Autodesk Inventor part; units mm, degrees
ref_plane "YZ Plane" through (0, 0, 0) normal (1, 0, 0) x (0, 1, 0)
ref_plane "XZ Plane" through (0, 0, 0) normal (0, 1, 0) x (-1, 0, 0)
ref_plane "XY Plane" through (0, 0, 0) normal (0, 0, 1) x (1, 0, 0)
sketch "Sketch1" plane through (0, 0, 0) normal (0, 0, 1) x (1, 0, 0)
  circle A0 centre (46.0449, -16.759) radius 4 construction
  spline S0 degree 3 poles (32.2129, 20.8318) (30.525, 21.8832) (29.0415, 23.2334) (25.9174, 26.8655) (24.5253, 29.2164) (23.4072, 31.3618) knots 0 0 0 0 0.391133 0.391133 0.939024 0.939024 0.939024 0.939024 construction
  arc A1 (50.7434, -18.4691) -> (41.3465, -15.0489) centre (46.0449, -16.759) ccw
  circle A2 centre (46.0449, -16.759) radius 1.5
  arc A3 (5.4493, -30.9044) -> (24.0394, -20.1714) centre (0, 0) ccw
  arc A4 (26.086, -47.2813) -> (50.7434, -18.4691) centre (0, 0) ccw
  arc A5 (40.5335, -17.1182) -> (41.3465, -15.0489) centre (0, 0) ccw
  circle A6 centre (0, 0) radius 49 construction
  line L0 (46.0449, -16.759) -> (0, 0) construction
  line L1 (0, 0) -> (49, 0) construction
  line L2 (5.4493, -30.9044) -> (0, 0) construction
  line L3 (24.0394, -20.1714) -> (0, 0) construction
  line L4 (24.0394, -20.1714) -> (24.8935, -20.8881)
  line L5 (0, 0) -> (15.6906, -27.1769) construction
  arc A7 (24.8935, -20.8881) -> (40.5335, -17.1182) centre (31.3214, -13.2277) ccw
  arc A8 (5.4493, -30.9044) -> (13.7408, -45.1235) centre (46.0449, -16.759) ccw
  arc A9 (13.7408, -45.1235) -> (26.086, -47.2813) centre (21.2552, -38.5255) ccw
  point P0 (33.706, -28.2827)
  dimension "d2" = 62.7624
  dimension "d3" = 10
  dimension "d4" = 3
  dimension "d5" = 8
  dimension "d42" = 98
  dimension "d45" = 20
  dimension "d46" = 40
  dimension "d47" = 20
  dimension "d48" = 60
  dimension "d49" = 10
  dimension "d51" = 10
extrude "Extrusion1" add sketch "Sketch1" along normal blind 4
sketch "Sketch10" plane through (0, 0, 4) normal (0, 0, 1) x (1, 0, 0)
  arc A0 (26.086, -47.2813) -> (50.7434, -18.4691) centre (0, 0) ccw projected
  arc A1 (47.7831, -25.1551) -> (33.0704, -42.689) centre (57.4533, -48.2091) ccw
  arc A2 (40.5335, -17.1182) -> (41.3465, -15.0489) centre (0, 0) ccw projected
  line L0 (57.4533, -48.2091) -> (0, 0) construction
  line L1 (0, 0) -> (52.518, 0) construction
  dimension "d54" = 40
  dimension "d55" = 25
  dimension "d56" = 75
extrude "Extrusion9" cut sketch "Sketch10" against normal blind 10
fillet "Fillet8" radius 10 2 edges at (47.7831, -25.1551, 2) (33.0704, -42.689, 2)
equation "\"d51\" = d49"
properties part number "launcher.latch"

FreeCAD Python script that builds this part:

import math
import FreeCAD as App
import Part
import Sketcher
Q = App.Units.Quantity


def edges_at(feature, points):
    """Names of the edges that pass closest to the given points."""
    edges = feature.Shape.Edges
    near = lambda p: min(range(len(edges)), key=lambda i: edges[i].distToShape(Part.Vertex(*p))[0])
    return sorted({f"Edge{near(p) + 1}" for p in points})

doc = App.newDocument("Part")
params = doc.addObject("Spreadsheet::Sheet", "Params")
for row, (alias, value) in enumerate([
    ("sketch1_diameter", "3 mm"),
    ("sketch1_radius", "5 mm"),
    ("sketch1_radius2", "10 mm"),
    ("sketch1_radius3", "54 mm"),
    ("pad1_length", "4 mm"),
    ("sketch2_radius", "25 mm"),
    ("sketch2_radius2", "54 mm"),
    ("pocket1_length", "10 mm"),
    ("fillet_radius", "10 mm"),
], start=1):
    params.set(f"A{row}", alias)
    params.set(f"B{row}", "=" + value)
    params.setAlias(f"B{row}", alias)

body = doc.addObject("PartDesign::Body", "Body")

sketch1 = body.newObject("Sketcher::SketchObject", "Sketch")
sketch1.AttachmentSupport = (doc.getObject("XY_Plane"), [""])
sketch1.MapMode = "FlatFace"
sketch1.addGeometry([
    Part.ArcOfCircle(Part.Circle(App.Vector(0, 0, 0), App.Vector(0, 0, 1), 54), math.radians(-61), math.radians(-20)),
    Part.ArcOfCircle(Part.Circle(App.Vector(46, -16.8, 0), App.Vector(0, 0, 1), 5), math.radians(-20), math.radians(160)),
    Part.ArcOfCircle(Part.Circle(App.Vector(-0.1, 0, 0), App.Vector(0, 0, 1), 44.1), math.radians(-22.89), math.radians(-20)),
    Part.ArcOfCircle(Part.Circle(App.Vector(31.3, -13.2, 0), App.Vector(0, 0, 1), 10), math.radians(-130), math.radians(-23)),
    Part.LineSegment(App.Vector(24.9, -20.9, 0), App.Vector(24, -20.2, 0)),
    Part.ArcOfCircle(Part.Circle(App.Vector(0, 0, 0), App.Vector(0, 0, 1), 31.4), math.radians(-80), math.radians(-40)),
    Part.ArcOfCircle(Part.Circle(App.Vector(46, -16.8, 0), App.Vector(0, 0, 1), 43), math.radians(-161), math.radians(-139)),
    Part.ArcOfCircle(Part.Circle(App.Vector(21.3, -38.5, 0), App.Vector(0, 0, 1), 10), math.radians(-139), math.radians(-61)),
    Part.Circle(App.Vector(46, -16.8, 0), App.Vector(0, 0, 1), 1.5),
], False)
sketch1.addConstraint([
    Sketcher.Constraint("Tangent", 0, 2, 1, 1),
    Sketcher.Constraint("Tangent", 1, 2, 2, 2),
    Sketcher.Constraint("Tangent", 2, 1, 3, 2),
    Sketcher.Constraint("Tangent", 3, 1, 4, 1),
    Sketcher.Constraint("Coincident", 4, 2, 5, 2),
    Sketcher.Constraint("Coincident", 5, 1, 6, 1),
    Sketcher.Constraint("Tangent", 6, 2, 7, 1),
    Sketcher.Constraint("Tangent", 7, 2, 0, 1),
    Sketcher.Constraint("Coincident", 0, 3, -1, 1),
    Sketcher.Constraint("Coincident", 5, 3, -1, 1),
    Sketcher.Constraint("Coincident", 8, 3, 1, 3),
    Sketcher.Constraint("Equal", 3, 7),
    Sketcher.Constraint("Diameter", 8, 3.0),
    Sketcher.Constraint("Radius", 1, 5.0),
    Sketcher.Constraint("Radius", 3, 10.0),
    Sketcher.Constraint("Radius", 0, 54.0),
    Sketcher.Constraint("Radius", 5, 31.3812),
    Sketcher.Constraint("Angle", 4, Q("139.999 deg")),
    Sketcher.Constraint("Radius", 6, 42.991),
    Sketcher.Constraint("Radius", 2, 44.0902),
    Sketcher.Constraint("DistanceX", 3, 1, 2, 1, 15.64),
    Sketcher.Constraint("DistanceX", 5, 1, 4, 2, 18.59),
    Sketcher.Constraint("Distance", 4, 1.115),
    Sketcher.Constraint("DistanceX", -1, 1, 1, 3, 46.045),
    Sketcher.Constraint("DistanceX", -1, 1, 7, 2, 26.086),
])
sketch1.setExpression("Constraints[12]", "Params.sketch1_diameter")
sketch1.setExpression("Constraints[13]", "Params.sketch1_radius")
sketch1.setExpression("Constraints[14]", "Params.sketch1_radius2")
sketch1.setExpression("Constraints[15]", "Params.sketch1_radius3")
pad1 = body.newObject("PartDesign::Pad", "Pad")
pad1.Profile = sketch1
pad1.setExpression("Length", "Params.pad1_length")

sketch2 = body.newObject("Sketcher::SketchObject", "Sketch001")
sketch2.AttachmentSupport = (doc.getObject("XY_Plane"), [""])
sketch2.MapMode = "FlatFace"
sketch2.AttachmentOffset = App.Placement(App.Vector(0, 0, 4), App.Rotation())
sketch2.addGeometry([
    Part.ArcOfCircle(Part.Circle(App.Vector(57, -48, 0), App.Vector(0, 0, 1), 25), math.radians(113), math.radians(167)),
    Part.ArcOfCircle(Part.Circle(App.Vector(0, 0, 0), App.Vector(0, 0, 1), 54), math.radians(-52), math.radians(-28)),
], False)
sketch2.addConstraint([
    Sketcher.Constraint("Coincident", 0, 1, 1, 2),
    Sketcher.Constraint("Coincident", 1, 1, 0, 2),
    Sketcher.Constraint("Coincident", 1, 3, -1, 1),
    Sketcher.Constraint("Radius", 0, 25.0),
    Sketcher.Constraint("Radius", 1, 54.0),
    Sketcher.Constraint("DistanceY", 0, 3, 1, 1, 5.52),
    Sketcher.Constraint("DistanceY", 0, 3, -1, 1, 48.209),
])
sketch2.setExpression("Constraints[3]", "Params.sketch2_radius")
sketch2.setExpression("Constraints[4]", "Params.sketch2_radius2")
pocket1 = body.newObject("PartDesign::Pocket", "Pocket")
pocket1.Profile = sketch2
pocket1.setExpression("Length", "Params.pocket1_length")
doc.recompute()

fillet = body.newObject("PartDesign::Fillet", "Fillet")
fillet.Base = (pocket1, edges_at(pocket1, [(47.783, -25.155, 2), (33.07, -42.689, 2)]))
fillet.setExpression("Radius", "Params.fillet_radius")

doc.recompute()
